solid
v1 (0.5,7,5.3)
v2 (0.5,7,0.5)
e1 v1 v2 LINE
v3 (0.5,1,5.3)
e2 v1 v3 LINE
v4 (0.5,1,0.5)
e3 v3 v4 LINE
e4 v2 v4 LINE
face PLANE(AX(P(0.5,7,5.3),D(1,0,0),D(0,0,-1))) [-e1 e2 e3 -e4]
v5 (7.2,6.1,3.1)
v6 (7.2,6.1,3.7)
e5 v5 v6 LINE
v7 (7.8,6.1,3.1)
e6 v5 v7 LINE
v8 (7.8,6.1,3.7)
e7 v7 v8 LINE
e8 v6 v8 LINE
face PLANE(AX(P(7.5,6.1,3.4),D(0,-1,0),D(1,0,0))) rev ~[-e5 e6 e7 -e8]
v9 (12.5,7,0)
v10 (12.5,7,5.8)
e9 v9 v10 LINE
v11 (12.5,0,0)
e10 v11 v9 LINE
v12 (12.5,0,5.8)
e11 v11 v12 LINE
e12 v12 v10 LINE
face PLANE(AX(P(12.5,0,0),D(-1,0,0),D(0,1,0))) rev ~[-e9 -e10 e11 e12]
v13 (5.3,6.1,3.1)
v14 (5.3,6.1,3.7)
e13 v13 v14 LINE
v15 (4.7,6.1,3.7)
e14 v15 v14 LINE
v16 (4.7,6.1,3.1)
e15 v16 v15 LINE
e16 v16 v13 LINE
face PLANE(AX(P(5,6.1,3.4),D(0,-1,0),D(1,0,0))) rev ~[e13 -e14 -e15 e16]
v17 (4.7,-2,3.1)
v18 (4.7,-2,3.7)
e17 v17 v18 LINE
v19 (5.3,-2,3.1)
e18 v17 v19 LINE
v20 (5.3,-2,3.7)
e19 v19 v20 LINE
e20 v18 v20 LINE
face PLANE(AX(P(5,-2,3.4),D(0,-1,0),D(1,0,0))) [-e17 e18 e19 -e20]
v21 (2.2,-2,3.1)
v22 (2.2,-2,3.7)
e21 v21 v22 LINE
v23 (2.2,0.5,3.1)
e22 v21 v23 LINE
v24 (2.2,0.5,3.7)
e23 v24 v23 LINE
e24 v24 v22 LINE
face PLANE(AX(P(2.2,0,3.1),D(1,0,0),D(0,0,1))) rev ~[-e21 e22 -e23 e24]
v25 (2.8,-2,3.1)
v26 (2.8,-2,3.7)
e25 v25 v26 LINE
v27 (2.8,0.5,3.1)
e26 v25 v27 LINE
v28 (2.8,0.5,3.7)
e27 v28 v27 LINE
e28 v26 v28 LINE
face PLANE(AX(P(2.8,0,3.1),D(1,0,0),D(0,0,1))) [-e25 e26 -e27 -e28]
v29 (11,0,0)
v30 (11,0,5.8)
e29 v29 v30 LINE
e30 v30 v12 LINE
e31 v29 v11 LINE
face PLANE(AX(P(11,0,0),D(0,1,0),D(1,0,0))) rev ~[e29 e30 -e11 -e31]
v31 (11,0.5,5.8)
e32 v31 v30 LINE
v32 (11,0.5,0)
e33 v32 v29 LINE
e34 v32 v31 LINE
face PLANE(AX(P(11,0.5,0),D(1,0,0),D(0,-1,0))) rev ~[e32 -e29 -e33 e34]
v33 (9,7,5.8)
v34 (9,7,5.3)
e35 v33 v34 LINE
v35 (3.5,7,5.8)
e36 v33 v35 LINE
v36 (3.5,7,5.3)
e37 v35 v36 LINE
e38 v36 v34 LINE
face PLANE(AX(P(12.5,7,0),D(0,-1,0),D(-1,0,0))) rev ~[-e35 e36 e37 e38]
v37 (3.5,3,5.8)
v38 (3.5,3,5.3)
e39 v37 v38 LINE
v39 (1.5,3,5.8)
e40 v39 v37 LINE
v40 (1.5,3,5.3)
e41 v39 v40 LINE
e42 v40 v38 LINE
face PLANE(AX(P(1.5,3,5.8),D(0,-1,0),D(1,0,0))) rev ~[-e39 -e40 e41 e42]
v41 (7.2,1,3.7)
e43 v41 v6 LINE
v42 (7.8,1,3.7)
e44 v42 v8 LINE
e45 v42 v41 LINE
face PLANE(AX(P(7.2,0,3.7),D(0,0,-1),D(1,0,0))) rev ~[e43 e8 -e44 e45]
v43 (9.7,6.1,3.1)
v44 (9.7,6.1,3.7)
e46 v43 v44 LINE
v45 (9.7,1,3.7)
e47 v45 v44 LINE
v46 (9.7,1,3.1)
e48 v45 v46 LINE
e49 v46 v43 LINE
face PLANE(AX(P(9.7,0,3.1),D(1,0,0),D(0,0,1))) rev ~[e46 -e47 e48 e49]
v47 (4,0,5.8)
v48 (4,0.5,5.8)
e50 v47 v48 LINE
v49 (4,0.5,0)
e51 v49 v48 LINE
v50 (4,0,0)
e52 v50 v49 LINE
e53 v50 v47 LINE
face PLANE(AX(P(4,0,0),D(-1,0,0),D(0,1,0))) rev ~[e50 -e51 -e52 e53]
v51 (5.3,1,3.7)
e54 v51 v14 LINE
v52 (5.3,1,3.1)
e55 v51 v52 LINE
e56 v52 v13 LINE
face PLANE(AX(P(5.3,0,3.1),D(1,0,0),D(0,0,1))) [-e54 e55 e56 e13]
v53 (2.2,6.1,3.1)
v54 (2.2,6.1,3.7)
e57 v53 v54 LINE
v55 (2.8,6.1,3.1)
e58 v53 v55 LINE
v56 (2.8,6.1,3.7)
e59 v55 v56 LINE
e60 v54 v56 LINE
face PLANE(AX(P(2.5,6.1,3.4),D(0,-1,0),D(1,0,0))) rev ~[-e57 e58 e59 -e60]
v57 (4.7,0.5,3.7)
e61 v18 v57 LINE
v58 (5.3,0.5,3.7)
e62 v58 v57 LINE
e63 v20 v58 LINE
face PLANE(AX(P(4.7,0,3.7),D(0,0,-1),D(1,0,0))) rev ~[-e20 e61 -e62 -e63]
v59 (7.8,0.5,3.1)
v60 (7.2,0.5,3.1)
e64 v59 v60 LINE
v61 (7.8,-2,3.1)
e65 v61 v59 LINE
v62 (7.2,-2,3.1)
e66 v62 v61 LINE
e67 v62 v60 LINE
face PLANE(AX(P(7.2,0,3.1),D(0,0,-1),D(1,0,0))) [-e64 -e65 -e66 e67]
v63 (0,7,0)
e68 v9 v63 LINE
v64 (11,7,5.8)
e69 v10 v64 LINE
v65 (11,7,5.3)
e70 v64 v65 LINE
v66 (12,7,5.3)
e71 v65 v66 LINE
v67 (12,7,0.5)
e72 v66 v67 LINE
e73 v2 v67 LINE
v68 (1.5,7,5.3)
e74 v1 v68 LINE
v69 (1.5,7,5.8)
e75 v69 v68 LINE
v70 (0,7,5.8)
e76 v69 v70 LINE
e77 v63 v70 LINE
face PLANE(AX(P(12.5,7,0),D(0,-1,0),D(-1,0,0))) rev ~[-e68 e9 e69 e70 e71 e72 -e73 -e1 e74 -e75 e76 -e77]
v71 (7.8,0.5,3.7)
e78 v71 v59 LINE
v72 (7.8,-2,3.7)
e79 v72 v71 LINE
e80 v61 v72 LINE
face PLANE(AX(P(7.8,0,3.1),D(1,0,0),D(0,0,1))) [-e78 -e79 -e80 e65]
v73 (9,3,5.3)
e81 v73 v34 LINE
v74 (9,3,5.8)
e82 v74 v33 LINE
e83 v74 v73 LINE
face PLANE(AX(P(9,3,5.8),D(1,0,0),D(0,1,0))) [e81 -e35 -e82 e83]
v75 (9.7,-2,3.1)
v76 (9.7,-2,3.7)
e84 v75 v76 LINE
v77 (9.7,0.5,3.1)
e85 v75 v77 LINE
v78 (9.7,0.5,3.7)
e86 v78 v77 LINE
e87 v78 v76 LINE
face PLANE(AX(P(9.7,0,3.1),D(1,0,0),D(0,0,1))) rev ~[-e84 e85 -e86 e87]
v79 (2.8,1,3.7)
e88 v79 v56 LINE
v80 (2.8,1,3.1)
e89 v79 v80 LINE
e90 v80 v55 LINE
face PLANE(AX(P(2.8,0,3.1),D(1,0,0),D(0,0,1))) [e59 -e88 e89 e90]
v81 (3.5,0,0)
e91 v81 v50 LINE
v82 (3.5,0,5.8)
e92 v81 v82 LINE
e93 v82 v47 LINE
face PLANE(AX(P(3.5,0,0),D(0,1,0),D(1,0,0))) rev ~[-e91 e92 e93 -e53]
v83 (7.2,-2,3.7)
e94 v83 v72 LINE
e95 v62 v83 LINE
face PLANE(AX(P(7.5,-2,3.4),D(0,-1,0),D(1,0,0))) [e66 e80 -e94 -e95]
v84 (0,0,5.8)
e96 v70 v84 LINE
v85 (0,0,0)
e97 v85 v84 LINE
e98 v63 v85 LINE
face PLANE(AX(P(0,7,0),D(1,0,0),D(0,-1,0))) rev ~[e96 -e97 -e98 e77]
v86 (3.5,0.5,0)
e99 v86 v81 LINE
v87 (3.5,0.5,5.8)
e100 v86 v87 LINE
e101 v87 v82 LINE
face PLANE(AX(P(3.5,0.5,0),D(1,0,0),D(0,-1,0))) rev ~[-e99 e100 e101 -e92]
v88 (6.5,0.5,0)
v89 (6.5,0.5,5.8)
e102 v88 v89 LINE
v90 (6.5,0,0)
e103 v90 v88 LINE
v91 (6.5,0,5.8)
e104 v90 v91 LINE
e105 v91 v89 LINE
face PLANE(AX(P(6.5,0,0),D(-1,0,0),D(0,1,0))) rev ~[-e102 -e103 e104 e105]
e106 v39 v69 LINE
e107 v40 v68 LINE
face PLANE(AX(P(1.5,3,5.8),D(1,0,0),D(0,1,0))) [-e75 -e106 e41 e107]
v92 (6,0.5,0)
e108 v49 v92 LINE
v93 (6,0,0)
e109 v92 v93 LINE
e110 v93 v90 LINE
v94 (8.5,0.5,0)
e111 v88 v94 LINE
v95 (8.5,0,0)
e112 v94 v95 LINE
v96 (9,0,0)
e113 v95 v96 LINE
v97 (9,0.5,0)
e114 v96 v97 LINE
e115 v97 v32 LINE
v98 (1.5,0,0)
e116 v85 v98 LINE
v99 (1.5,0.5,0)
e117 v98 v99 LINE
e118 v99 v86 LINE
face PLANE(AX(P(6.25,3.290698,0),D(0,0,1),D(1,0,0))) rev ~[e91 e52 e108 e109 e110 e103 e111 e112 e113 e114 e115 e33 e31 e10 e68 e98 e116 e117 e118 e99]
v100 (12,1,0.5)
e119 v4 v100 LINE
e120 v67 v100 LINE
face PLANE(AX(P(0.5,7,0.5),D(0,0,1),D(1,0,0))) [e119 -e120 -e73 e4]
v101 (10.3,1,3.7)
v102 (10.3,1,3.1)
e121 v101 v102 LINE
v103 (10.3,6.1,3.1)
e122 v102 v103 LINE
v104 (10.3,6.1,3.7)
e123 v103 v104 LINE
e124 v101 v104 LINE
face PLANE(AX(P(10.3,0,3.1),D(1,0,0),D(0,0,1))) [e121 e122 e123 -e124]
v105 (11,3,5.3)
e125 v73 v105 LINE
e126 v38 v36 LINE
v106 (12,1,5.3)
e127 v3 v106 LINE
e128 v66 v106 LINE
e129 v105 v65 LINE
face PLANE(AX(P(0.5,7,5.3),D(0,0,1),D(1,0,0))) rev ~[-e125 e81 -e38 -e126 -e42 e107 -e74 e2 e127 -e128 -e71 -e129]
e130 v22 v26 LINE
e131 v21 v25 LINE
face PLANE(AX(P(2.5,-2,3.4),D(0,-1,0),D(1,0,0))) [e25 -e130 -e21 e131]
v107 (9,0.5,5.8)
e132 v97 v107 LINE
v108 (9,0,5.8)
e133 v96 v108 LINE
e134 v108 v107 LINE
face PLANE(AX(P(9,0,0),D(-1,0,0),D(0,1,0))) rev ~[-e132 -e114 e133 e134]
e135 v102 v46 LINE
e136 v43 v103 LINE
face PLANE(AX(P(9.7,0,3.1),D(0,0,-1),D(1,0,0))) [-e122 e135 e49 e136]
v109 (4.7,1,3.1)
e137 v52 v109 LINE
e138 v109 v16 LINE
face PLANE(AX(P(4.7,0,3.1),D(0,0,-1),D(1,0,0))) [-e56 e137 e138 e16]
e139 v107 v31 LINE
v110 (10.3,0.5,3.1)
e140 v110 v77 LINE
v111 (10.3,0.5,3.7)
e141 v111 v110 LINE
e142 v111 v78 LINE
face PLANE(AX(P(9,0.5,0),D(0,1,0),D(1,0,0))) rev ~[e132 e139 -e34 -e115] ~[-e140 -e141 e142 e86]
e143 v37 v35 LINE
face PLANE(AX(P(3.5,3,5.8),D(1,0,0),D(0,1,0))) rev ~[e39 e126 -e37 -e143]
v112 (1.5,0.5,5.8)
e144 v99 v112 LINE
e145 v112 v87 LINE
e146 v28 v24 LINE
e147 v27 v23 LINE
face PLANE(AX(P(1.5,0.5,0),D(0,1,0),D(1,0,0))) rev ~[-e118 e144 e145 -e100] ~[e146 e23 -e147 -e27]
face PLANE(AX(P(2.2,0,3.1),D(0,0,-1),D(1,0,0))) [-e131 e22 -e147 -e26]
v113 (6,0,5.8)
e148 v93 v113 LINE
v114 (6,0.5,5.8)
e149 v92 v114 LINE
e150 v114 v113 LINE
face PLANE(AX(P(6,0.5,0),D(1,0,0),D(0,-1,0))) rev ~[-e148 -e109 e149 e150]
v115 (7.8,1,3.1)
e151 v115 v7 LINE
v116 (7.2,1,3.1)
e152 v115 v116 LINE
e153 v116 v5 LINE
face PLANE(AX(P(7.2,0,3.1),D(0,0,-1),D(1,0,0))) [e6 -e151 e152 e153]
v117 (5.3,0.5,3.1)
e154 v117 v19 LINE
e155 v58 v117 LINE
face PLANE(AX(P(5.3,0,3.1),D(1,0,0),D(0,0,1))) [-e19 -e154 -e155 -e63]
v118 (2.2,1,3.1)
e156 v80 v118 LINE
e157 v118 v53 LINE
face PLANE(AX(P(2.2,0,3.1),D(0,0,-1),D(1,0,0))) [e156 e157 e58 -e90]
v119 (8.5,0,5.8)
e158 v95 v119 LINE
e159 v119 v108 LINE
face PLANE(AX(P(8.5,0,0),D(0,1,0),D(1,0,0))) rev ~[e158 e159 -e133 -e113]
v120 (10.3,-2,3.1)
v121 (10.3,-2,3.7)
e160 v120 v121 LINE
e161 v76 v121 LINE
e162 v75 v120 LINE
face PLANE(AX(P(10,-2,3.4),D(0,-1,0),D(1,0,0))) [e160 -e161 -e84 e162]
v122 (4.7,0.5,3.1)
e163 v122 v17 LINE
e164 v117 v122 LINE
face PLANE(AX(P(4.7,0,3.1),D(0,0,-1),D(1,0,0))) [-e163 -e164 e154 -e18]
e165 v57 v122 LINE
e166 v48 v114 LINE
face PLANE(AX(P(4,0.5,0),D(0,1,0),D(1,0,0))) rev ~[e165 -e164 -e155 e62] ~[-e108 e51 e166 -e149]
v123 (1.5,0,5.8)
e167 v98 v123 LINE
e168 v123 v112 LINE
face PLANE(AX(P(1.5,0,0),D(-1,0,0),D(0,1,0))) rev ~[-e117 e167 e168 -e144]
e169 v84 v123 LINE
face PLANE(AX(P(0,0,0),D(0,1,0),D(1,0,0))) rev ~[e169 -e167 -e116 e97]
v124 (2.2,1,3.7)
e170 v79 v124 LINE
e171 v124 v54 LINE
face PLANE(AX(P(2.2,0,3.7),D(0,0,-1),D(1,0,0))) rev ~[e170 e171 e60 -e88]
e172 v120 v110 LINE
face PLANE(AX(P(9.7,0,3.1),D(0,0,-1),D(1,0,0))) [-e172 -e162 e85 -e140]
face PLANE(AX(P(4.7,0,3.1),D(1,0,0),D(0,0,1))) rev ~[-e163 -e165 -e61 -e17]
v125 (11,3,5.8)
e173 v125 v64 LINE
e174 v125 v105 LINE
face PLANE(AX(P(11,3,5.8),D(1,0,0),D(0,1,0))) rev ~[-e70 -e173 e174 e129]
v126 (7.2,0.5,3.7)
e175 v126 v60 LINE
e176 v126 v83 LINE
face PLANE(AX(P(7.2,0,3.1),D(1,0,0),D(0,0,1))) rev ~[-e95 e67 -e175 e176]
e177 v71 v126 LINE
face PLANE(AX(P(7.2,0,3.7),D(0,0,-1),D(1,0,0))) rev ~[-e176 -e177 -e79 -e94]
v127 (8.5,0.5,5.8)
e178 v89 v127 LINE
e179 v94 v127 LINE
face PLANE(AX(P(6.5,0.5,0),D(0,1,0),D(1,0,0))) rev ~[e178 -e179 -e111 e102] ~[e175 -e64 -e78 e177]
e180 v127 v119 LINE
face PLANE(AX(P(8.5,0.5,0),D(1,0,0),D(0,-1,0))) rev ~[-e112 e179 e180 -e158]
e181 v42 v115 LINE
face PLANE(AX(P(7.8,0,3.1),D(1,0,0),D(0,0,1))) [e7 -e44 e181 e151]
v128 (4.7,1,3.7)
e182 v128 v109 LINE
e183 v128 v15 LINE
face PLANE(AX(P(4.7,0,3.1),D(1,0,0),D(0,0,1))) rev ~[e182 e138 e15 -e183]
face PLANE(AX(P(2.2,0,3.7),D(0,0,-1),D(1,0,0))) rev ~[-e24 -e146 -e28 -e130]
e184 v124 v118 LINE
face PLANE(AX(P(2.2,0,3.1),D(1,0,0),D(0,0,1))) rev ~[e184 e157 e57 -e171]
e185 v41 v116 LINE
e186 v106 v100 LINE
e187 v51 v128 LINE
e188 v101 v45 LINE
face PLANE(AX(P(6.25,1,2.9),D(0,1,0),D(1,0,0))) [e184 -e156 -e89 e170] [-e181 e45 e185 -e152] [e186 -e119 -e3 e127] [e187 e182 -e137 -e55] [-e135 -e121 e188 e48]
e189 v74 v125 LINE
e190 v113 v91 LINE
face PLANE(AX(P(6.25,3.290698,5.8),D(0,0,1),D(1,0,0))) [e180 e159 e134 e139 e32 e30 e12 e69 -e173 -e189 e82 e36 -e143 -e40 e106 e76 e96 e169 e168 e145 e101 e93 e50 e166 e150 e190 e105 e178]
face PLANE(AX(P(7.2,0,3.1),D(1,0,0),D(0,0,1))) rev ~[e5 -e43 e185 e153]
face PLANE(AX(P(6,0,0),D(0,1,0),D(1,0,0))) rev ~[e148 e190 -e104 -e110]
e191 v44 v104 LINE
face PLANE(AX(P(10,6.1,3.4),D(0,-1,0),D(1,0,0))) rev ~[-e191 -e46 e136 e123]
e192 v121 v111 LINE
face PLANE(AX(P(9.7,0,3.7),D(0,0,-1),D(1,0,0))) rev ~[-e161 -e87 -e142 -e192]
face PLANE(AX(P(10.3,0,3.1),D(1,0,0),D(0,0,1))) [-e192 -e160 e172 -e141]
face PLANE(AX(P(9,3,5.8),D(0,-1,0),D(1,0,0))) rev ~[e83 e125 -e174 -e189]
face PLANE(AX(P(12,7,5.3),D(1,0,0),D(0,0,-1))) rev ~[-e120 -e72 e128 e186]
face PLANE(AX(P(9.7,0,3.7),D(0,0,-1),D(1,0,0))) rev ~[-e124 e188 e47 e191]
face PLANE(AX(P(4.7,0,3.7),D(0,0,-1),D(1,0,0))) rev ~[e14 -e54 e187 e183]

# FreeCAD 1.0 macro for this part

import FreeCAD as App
import Part
import Sketcher
from FreeCAD import Vector


def add_polygon(sketch, points):
    """Adds a closed chain of lines whose ends are joined by coincident constraints."""
    first, n = sketch.GeometryCount, len(points)
    for a, b in zip(points, points[1:] + points[:1]):
        sketch.addGeometry(Part.LineSegment(App.Vector(*a, 0), App.Vector(*b, 0)), False)
    for i in range(n):
        sketch.addConstraint(Sketcher.Constraint("Coincident", first + i, 2, first + (i + 1) % n, 1))

doc = App.newDocument("Part")
body = doc.addObject("PartDesign::Body", "Body")

# Sketch on XY plane
sketch1 = doc.addObject("Sketcher::SketchObject", "Sketch")
body.addObject(sketch1)
sketch1.AttachmentSupport = (doc.XY_Plane, [""])
sketch1.MapMode = "FlatFace"
add_polygon(sketch1, [(4, 0), (4, 0.5), (6, 0.5), (6, 0), (6.5, 0), (6.5, 0.5), (8.5, 0.5), (8.5, 0), (9, 0), (9, 0.5), (11, 0.5), (11, 0), (12.5, 0), (12.5, 7), (0, 7), (0, 0), (1.5, 0), (1.5, 0.5), (3.5, 0.5), (3.5, 0)])  # lines 0-19
sketch1.addConstraint([
    Sketcher.Constraint("Vertical", 0),
    Sketcher.Constraint("Horizontal", 1),
    Sketcher.Constraint("Vertical", 2),
    Sketcher.Constraint("Horizontal", 3),
    Sketcher.Constraint("Vertical", 4),
    Sketcher.Constraint("Horizontal", 5),
    Sketcher.Constraint("Vertical", 6),
    Sketcher.Constraint("Horizontal", 7),
    Sketcher.Constraint("Vertical", 8),
    Sketcher.Constraint("Horizontal", 9),
    Sketcher.Constraint("Vertical", 10),
    Sketcher.Constraint("Horizontal", 11),
    Sketcher.Constraint("Vertical", 12),
    Sketcher.Constraint("Horizontal", 13),
    Sketcher.Constraint("Vertical", 14),
    Sketcher.Constraint("Horizontal", 15),
    Sketcher.Constraint("Vertical", 16),
    Sketcher.Constraint("Horizontal", 17),
    Sketcher.Constraint("Vertical", 18),
    Sketcher.Constraint("Horizontal", 19),
    Sketcher.Constraint("Coincident", 14, 2, -1, 1),
    Sketcher.Constraint("PointOnObject", 2, 2, -1),
    Sketcher.Constraint("PointOnObject", 6, 2, -1),
    Sketcher.Constraint("PointOnObject", 10, 2, -1),
    Sketcher.Constraint("PointOnObject", 18, 2, -1),
    Sketcher.Constraint("Horizontal", 1, 2, 4, 2),
    Sketcher.Constraint("Horizontal", 5, 2, 8, 2),
    Sketcher.Constraint("Horizontal", 9, 2, 16, 2),
    Sketcher.Constraint("Equal", 1, 5),
    Sketcher.Constraint("Equal", 3, 7),
    Sketcher.Constraint("Equal", 5, 9),
    Sketcher.Constraint("Equal", 11, 15),
    Sketcher.Constraint("Equal", 9, 17),
    Sketcher.Constraint("Equal", 7, 19),
    Sketcher.Constraint("Equal", 19, 0),
    Sketcher.Constraint("DistanceX", 1, 1, 1, 2, 2.0),
    Sketcher.Constraint("DistanceY", 12, 1, 12, 2, 7.0),
    Sketcher.Constraint("DistanceX", 3, 1, 3, 2, 0.5),
    Sketcher.Constraint("DistanceX", 11, 1, 11, 2, 1.5),
])
pad1 = doc.addObject("PartDesign::Pad", "Pad")
body.addObject(pad1)
pad1.Profile = sketch1
pad1.Length = 5.8

# Sketch on XZ plane
sketch2 = doc.addObject("Sketcher::SketchObject", "Sketch001")
body.addObject(sketch2)
sketch2.AttachmentSupport = (doc.XZ_Plane, [""])
sketch2.MapMode = "FlatFace"
sketch2.AttachmentOffset = App.Placement(Vector(0, 0, -7), App.Rotation())
add_polygon(sketch2, [(0.5, 0.5), (0.5, 5.3), (12, 5.3), (12, 0.5)])  # lines 0-3
sketch2.addConstraint([
    Sketcher.Constraint("Vertical", 0),
    Sketcher.Constraint("Horizontal", 1),
    Sketcher.Constraint("Vertical", 2),
    Sketcher.Constraint("Horizontal", 3),
    Sketcher.Constraint("DistanceX", 1, 1, 1, 2, 11.5),
    Sketcher.Constraint("DistanceY", 0, 1, 0, 2, 4.8),
    Sketcher.Constraint("DistanceX", -1, 1, 1, 2, 12.0),
    Sketcher.Constraint("DistanceY", -1, 1, 0, 2, 5.3),
])
pocket1 = doc.addObject("PartDesign::Pocket", "Pocket")
body.addObject(pocket1)
pocket1.Profile = sketch2
pocket1.Length = 6
pocket1.Reversed = True

# Sketch on XZ plane
sketch3 = doc.addObject("Sketcher::SketchObject", "Sketch002")
body.addObject(sketch3)
sketch3.AttachmentSupport = (doc.XZ_Plane, [""])
sketch3.MapMode = "FlatFace"
add_polygon(sketch3, [(4.7, 3.7), (4.7, 3.1), (5.3, 3.1), (5.3, 3.7)])  # lines 0-3
add_polygon(sketch3, [(7.2, 3.7), (7.2, 3.1), (7.8, 3.1), (7.8, 3.7)])  # lines 4-7
add_polygon(sketch3, [(2.2, 3.7), (2.2, 3.1), (2.8, 3.1), (2.8, 3.7)])  # lines 8-11
add_polygon(sketch3, [(9.7, 3.7), (9.7, 3.1), (10.3, 3.1), (10.3, 3.7)])  # lines 12-15
sketch3.addConstraint([
    Sketcher.Constraint("Vertical", 0),
    Sketcher.Constraint("Horizontal", 1),
    Sketcher.Constraint("Vertical", 2),
    Sketcher.Constraint("Horizontal", 3),
    Sketcher.Constraint("Vertical", 4),
    Sketcher.Constraint("Horizontal", 5),
    Sketcher.Constraint("Vertical", 6),
    Sketcher.Constraint("Horizontal", 7),
    Sketcher.Constraint("Vertical", 8),
    Sketcher.Constraint("Horizontal", 9),
    Sketcher.Constraint("Vertical", 10),
    Sketcher.Constraint("Horizontal", 11),
    Sketcher.Constraint("Vertical", 12),
    Sketcher.Constraint("Horizontal", 13),
    Sketcher.Constraint("Vertical", 14),
    Sketcher.Constraint("Horizontal", 15),
    Sketcher.Constraint("Horizontal", 1, 2, 4, 2),
    Sketcher.Constraint("Horizontal", 3, 2, 6, 2),
    Sketcher.Constraint("Horizontal", 5, 2, 8, 2),
    Sketcher.Constraint("Horizontal", 7, 2, 10, 2),
    Sketcher.Constraint("Horizontal", 9, 2, 12, 2),
    Sketcher.Constraint("Horizontal", 11, 2, 14, 2),
    Sketcher.Constraint("Equal", 3, 5),
    Sketcher.Constraint("Equal", 7, 9),
    Sketcher.Constraint("Equal", 11, 13),
    Sketcher.Constraint("Equal", 15, 0),
    Sketcher.Constraint("DistanceX", 1, 1, 1, 2, 0.6),
    Sketcher.Constraint("DistanceX", 8, 2, 4, 2, 5.0),
    Sketcher.Constraint("DistanceX", -1, 1, 0, 2, 4.7),
    Sketcher.Constraint("DistanceY", -1, 1, 0, 2, 3.1),
    Sketcher.Constraint("DistanceX", -1, 1, 4, 2, 7.2),
    Sketcher.Constraint("DistanceX", -1, 1, 12, 2, 9.7),
])
pad2 = doc.addObject("PartDesign::Pad", "Pad001")
body.addObject(pad2)
pad2.Profile = sketch3
pad2.Type = "TwoLengths"
pad2.Length = 2
pad2.Length2 = 6.1

# Sketch on XY plane
sketch4 = doc.addObject("Sketcher::SketchObject", "Sketch003")
body.addObject(sketch4)
sketch4.AttachmentSupport = (doc.XY_Plane, [""])
sketch4.MapMode = "FlatFace"
sketch4.AttachmentOffset = App.Placement(Vector(0, 0, 5.8), App.Rotation())
add_polygon(sketch4, [(1.5, 7), (1.5, 3), (3.5, 3), (3.5, 7)])  # lines 0-3
add_polygon(sketch4, [(9, 7), (9, 3), (11, 3), (11, 7)])  # lines 4-7
sketch4.addConstraint([
    Sketcher.Constraint("Vertical", 0),
    Sketcher.Constraint("Horizontal", 1),
    Sketcher.Constraint("Vertical", 2),
    Sketcher.Constraint("Horizontal", 3),
    Sketcher.Constraint("Vertical", 4),
    Sketcher.Constraint("Horizontal", 5),
    Sketcher.Constraint("Vertical", 6),
    Sketcher.Constraint("Horizontal", 7),
    Sketcher.Constraint("Horizontal", 1, 2, 4, 2),
    Sketcher.Constraint("Horizontal", 3, 2, 6, 2),
    Sketcher.Constraint("Equal", 3, 5),
    Sketcher.Constraint("DistanceX", 1, 1, 1, 2, 2.0),
    Sketcher.Constraint("DistanceY", 0, 2, 0, 1, 4.0),
    Sketcher.Constraint("DistanceY", -1, 1, 0, 2, 3.0),
    Sketcher.Constraint("DistanceX", -1, 1, 4, 2, 9.0),
    Sketcher.Constraint("DistanceX", -1, 1, 0, 2, 1.5),
])
pocket2 = doc.addObject("PartDesign::Pocket", "Pocket001")
body.addObject(pocket2)
pocket2.Profile = sketch4
pocket2.Length = 1

doc.recompute()
